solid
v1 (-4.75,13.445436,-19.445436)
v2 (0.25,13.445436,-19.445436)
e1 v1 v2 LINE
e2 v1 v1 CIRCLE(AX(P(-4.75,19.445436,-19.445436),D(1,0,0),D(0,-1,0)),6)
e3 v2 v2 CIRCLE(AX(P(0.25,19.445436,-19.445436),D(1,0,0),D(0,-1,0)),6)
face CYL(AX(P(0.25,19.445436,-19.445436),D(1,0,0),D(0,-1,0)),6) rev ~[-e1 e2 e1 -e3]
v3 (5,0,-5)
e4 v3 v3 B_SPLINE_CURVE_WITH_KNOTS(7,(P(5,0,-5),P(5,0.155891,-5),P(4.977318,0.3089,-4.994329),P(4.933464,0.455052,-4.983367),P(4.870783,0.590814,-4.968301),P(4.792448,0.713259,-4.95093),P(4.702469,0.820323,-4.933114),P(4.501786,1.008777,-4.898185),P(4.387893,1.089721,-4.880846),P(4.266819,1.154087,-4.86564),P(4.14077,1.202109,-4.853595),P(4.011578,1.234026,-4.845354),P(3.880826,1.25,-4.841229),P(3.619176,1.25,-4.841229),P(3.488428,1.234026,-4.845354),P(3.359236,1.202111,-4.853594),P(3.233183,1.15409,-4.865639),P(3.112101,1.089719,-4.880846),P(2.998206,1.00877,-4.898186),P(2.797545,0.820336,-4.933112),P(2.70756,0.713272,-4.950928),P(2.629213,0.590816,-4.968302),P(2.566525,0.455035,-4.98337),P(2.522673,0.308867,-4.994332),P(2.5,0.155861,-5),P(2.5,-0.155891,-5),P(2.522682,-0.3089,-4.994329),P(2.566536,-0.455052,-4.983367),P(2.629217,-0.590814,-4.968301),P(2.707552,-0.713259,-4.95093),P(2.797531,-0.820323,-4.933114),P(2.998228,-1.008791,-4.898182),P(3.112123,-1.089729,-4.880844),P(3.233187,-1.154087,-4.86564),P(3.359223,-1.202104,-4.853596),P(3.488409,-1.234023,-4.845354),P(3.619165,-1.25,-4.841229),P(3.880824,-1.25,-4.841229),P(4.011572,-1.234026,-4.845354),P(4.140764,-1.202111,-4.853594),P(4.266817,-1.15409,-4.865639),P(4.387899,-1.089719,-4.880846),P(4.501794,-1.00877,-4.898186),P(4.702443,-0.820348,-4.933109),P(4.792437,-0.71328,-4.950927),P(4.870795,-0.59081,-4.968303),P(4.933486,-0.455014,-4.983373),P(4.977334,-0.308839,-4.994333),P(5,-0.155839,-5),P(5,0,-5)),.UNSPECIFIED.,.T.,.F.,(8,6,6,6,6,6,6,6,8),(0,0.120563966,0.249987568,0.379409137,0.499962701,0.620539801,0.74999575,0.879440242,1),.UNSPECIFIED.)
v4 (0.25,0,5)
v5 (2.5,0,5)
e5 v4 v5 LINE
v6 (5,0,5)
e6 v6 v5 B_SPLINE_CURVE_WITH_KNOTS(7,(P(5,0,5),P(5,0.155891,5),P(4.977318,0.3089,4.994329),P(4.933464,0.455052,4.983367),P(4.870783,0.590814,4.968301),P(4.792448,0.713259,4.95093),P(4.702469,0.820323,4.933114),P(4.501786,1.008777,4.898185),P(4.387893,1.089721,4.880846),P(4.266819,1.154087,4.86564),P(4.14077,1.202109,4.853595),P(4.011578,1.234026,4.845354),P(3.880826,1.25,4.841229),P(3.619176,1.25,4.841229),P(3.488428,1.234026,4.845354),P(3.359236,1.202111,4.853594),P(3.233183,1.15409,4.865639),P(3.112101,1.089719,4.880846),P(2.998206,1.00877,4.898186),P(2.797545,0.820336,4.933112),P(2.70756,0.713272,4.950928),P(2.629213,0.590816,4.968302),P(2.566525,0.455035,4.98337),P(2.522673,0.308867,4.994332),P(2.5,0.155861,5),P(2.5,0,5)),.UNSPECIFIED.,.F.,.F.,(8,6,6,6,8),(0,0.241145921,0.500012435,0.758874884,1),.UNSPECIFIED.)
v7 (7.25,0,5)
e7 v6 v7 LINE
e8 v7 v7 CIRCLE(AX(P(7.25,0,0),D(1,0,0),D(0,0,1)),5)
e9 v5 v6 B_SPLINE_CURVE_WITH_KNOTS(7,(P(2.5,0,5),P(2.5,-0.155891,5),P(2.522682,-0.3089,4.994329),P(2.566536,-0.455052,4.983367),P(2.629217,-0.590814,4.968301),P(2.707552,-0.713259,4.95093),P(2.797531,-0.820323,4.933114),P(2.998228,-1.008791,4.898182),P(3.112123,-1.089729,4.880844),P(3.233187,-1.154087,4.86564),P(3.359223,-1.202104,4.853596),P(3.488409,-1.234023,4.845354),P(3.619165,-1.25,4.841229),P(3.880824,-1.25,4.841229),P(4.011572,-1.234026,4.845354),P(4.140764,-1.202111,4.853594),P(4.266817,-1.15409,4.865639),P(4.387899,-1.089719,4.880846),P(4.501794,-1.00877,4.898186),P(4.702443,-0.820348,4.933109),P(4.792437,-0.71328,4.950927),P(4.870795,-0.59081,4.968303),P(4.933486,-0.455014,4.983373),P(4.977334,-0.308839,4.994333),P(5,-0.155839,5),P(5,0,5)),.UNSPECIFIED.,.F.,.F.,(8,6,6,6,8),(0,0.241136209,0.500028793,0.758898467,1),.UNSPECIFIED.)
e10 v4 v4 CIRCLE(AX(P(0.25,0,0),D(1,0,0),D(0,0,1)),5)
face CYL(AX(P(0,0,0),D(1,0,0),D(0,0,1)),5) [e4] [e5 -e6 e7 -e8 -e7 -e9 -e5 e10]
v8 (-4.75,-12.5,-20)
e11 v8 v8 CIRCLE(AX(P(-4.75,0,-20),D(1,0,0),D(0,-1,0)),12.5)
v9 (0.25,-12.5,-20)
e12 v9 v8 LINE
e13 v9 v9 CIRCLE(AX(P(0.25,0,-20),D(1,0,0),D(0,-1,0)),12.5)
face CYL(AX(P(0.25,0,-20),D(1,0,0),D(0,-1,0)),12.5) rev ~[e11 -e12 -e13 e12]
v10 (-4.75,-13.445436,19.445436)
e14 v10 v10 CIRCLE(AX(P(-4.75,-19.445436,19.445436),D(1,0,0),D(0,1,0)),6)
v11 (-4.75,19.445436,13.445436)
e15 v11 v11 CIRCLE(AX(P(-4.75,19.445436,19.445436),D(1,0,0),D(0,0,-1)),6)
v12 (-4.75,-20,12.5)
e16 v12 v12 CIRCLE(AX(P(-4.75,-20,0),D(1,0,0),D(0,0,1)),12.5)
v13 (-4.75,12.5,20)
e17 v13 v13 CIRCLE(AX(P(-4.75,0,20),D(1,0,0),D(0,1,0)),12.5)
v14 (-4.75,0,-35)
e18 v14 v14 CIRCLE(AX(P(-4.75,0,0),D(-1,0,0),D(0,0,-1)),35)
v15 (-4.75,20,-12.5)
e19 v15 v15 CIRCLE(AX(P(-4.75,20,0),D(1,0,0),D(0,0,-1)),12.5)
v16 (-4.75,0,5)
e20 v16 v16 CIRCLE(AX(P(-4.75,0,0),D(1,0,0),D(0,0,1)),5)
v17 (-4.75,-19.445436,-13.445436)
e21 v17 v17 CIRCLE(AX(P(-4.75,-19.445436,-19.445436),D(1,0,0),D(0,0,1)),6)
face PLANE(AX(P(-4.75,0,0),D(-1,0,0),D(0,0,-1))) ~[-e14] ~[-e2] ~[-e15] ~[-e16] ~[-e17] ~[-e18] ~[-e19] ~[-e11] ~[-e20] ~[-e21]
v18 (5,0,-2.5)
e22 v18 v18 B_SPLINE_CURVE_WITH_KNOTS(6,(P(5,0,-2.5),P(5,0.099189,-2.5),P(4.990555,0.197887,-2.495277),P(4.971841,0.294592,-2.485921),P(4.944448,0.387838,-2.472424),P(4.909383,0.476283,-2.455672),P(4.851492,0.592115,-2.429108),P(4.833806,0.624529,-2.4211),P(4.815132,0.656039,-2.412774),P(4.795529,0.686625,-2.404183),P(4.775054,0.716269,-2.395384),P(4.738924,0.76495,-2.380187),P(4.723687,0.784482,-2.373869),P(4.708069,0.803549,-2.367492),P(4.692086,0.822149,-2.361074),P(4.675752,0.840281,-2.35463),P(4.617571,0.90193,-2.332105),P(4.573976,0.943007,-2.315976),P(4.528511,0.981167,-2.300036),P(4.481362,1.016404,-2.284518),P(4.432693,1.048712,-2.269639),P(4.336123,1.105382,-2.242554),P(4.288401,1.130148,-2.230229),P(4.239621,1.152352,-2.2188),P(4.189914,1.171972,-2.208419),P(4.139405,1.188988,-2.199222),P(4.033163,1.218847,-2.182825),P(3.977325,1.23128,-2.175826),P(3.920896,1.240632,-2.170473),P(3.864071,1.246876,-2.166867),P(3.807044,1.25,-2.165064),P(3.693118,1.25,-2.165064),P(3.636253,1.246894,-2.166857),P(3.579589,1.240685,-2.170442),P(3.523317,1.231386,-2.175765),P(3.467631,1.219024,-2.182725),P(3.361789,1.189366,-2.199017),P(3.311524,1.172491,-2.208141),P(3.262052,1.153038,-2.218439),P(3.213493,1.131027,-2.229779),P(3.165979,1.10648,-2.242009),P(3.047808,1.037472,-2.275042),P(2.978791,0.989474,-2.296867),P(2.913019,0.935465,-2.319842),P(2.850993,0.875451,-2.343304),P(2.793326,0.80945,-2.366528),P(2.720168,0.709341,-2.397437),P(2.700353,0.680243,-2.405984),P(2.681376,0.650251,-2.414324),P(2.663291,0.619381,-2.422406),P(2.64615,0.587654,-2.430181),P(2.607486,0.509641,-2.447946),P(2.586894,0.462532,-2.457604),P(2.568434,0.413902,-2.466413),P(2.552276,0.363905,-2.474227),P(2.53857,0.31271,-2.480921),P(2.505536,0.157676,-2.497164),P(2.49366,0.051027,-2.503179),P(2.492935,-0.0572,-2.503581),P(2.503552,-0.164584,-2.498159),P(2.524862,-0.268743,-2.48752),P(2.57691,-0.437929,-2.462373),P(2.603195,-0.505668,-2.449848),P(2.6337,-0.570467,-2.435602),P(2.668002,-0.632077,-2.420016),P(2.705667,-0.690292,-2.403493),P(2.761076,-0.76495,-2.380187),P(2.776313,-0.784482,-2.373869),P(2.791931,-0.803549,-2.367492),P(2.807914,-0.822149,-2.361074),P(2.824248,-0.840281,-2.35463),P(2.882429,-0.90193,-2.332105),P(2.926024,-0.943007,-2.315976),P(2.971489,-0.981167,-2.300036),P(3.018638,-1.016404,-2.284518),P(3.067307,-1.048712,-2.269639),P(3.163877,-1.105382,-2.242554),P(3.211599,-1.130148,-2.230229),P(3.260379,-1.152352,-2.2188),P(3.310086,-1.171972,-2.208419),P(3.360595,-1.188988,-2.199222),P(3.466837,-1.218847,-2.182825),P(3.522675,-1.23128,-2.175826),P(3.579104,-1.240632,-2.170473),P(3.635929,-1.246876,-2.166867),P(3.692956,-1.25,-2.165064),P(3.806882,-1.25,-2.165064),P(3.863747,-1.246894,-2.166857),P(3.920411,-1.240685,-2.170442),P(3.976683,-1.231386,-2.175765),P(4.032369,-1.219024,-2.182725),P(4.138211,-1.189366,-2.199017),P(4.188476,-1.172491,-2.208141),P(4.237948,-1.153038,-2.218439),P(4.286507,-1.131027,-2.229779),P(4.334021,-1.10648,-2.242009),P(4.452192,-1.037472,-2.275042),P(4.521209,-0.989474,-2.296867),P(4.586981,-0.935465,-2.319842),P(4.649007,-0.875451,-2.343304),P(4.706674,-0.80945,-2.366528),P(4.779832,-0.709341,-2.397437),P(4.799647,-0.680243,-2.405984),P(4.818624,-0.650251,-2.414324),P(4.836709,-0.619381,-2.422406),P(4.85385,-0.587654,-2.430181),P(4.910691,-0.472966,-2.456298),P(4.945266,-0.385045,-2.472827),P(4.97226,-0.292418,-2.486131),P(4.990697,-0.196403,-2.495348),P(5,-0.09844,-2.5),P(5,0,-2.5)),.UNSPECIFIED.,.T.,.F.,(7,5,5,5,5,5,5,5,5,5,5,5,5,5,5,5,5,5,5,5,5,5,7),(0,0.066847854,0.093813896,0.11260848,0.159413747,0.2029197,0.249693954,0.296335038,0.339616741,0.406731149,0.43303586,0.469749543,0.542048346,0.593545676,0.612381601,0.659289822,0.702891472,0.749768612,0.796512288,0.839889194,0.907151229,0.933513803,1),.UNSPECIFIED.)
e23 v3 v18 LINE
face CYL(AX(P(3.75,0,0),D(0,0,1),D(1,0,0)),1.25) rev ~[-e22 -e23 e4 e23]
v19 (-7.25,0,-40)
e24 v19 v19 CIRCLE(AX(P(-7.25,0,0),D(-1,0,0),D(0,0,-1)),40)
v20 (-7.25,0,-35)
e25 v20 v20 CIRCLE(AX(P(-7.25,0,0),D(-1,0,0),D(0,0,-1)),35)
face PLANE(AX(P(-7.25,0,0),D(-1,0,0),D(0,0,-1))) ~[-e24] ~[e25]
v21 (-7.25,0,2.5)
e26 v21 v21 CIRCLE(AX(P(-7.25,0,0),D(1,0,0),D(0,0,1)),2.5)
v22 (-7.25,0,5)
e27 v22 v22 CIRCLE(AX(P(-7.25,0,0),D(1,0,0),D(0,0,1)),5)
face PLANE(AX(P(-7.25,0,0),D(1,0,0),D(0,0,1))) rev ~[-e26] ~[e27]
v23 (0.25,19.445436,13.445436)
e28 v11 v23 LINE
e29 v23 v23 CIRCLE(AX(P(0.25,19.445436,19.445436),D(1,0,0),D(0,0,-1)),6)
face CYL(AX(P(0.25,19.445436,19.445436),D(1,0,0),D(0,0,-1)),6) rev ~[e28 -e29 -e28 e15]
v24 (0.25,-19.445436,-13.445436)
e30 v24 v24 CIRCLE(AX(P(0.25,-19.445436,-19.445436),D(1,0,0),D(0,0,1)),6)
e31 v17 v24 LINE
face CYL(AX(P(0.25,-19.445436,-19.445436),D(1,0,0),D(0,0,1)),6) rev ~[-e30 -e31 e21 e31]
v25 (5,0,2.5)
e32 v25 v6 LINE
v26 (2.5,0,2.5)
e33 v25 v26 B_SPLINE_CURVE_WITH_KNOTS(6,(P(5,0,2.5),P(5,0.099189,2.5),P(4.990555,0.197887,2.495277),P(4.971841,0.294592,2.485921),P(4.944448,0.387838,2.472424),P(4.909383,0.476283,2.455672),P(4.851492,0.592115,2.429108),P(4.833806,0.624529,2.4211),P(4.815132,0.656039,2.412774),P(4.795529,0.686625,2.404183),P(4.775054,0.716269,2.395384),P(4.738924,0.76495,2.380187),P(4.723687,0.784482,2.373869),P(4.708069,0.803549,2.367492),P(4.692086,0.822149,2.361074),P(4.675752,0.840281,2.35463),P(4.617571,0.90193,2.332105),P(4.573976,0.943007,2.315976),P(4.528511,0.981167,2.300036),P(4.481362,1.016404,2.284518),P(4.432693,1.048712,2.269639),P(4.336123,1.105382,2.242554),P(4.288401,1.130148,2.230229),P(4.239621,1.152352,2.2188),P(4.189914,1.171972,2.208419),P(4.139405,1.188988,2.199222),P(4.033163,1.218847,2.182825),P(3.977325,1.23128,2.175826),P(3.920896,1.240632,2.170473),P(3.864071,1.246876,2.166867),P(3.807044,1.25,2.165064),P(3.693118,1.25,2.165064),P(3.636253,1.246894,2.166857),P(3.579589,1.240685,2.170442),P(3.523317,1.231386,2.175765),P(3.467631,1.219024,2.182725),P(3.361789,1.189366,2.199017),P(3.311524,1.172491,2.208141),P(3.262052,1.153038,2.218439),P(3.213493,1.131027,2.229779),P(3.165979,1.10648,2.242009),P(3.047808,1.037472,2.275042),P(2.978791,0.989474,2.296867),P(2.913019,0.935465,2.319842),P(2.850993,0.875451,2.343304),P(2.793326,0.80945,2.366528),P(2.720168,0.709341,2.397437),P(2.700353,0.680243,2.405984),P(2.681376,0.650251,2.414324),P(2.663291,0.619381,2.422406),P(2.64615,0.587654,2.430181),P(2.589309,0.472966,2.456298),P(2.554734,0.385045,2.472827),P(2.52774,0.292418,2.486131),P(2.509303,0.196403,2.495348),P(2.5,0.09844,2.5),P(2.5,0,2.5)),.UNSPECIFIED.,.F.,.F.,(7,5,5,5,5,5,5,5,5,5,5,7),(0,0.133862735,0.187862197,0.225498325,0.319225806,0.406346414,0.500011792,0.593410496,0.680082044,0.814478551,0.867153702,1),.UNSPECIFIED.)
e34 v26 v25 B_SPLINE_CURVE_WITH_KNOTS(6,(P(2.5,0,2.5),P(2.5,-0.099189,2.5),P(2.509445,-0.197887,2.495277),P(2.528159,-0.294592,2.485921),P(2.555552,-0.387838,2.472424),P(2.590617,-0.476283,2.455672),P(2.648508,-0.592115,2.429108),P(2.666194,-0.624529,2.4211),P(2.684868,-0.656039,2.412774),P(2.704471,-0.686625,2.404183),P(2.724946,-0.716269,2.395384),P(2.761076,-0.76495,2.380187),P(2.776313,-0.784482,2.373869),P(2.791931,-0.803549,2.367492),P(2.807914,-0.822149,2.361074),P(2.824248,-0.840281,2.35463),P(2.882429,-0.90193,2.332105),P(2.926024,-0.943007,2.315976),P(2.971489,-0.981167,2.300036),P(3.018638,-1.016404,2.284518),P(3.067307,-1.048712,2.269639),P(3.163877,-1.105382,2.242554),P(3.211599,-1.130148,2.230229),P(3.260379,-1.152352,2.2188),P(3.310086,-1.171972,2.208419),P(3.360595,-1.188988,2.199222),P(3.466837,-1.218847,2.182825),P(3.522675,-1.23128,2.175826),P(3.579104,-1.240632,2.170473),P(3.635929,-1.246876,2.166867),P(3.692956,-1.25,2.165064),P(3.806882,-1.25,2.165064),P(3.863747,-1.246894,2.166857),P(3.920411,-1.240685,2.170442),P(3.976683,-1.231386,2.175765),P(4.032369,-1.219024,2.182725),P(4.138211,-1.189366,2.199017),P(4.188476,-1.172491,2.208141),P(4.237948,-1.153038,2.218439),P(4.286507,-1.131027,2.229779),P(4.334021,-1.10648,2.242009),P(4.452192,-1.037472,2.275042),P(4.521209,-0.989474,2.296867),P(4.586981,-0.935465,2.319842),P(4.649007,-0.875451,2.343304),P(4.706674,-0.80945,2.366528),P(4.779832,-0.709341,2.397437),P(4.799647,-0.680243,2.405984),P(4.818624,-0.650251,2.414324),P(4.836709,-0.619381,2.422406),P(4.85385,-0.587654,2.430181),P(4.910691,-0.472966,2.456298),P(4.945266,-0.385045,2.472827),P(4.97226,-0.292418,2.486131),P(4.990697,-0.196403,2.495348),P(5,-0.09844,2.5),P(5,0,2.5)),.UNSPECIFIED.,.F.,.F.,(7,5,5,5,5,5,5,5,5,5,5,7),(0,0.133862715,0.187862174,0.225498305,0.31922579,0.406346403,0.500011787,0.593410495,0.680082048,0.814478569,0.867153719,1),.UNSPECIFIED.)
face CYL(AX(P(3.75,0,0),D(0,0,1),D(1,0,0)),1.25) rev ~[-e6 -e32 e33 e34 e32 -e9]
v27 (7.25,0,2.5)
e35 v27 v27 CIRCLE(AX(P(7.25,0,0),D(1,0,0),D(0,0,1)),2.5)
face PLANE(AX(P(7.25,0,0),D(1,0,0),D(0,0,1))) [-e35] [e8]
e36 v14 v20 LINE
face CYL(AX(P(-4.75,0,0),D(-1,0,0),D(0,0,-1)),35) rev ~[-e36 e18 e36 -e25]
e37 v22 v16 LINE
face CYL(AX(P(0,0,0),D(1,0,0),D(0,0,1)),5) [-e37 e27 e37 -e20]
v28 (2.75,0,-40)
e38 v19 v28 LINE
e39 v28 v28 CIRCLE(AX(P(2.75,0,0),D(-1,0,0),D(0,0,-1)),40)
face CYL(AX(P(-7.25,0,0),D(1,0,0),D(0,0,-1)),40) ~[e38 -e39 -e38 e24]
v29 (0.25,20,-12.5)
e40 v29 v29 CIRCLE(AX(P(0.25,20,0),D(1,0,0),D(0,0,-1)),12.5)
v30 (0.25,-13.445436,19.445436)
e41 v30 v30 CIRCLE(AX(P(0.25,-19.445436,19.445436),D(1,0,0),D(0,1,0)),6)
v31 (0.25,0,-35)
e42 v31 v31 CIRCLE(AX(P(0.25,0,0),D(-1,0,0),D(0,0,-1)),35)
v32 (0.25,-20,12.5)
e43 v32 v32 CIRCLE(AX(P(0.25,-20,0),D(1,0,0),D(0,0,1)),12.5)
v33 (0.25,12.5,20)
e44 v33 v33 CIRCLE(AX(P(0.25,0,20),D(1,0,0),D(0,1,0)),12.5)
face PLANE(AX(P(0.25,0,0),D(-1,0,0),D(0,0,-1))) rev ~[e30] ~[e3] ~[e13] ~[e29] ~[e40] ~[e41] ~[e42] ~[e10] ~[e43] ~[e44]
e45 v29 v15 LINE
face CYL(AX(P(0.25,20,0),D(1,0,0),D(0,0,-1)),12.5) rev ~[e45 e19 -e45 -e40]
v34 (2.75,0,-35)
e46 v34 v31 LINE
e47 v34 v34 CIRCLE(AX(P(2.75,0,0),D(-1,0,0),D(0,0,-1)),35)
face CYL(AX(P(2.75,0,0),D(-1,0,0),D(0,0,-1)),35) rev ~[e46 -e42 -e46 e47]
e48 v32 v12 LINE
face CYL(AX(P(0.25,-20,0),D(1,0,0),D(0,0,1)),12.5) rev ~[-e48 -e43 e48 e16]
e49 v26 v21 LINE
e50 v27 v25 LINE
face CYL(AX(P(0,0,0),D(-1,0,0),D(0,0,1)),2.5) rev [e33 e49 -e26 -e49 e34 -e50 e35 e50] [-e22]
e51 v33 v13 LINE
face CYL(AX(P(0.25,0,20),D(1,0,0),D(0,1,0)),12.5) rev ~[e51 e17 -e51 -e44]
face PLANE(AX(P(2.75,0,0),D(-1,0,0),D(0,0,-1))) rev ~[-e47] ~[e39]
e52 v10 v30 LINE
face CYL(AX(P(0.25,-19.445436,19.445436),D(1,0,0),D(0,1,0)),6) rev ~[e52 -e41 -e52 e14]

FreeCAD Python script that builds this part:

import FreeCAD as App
import Part
import Sketcher

V = App.Vector


def add_polygon(sketch, points):
    """Adds a closed chain of lines whose ends are joined by coincident constraints."""
    first, n = sketch.GeometryCount, len(points)
    for a, b in zip(points, points[1:] + points[:1]):
        sketch.addGeometry(Part.LineSegment(App.Vector(*a, 0), App.Vector(*b, 0)), False)
    for i in range(n):
        sketch.addConstraint(Sketcher.Constraint("Coincident", first + i, 2, first + (i + 1) % n, 1))

doc = App.newDocument("Part")
params = doc.addObject("Spreadsheet::Sheet", "Params")
for row, (alias, value) in enumerate([
    ("sketch1_diameter", "10 mm"),
    ("sketch1_diameter2", "5 mm"),
    ("pad1_length", "14.5 mm"),
    ("sketch2_width", "5 mm"),
    ("sketch2_width2", "10 mm"),
    ("sketch2_height", "30 mm"),
    ("revolution_angle", "360 deg"),
    ("sketch3_diameter", "25 mm"),
    ("sketch3_diameter2", "12 mm"),
    ("pocket1_length", "116.127122 mm"),
    ("sketch4_diameter", "2.5 mm"),
    ("pocket2_length", "20 mm"),
], start=1):
    params.set(f"A{row}", alias)
    params.set(f"B{row}", "=" + value)
    params.setAlias(f"B{row}", alias)

body = doc.addObject("PartDesign::Body", "Body")

# Sketch on YZ plane
sketch1 = doc.addObject("Sketcher::SketchObject", "Sketch")
body.addObject(sketch1)
sketch1.AttachmentSupport = (doc.YZ_Plane, [""])
sketch1.MapMode = "FlatFace"
sketch1.addGeometry([
    Part.Circle(V(0, 0, 0), V(0, 0, 1), 5),
    Part.Circle(V(0, 0, 0), V(0, 0, 1), 2.5),
], False)
sketch1.addConstraint([
    Sketcher.Constraint("Coincident", 0, 3, -1, 1),
    Sketcher.Constraint("Coincident", 1, 3, -1, 1),
    Sketcher.Constraint("Diameter", 0, 10.0),
    Sketcher.Constraint("Diameter", 1, 5.0),
])
sketch1.setExpression("Constraints[2]", "Params.sketch1_diameter")
sketch1.setExpression("Constraints[3]", "Params.sketch1_diameter2")
pad1 = doc.addObject("PartDesign::Pad", "Pad")
body.addObject(pad1)
pad1.Profile = sketch1
pad1.setExpression("Length", "Params.pad1_length")
pad1.Midplane = True

# Sketch on XY plane
sketch2 = doc.addObject("Sketcher::SketchObject", "Sketch001")
body.addObject(sketch2)
sketch2.AttachmentSupport = (doc.XY_Plane, [""])
sketch2.MapMode = "FlatFace"
add_polygon(sketch2, [(-4.8, 35), (-4.8, 5), (0.2, 5), (0.2, 35), (2.8, 35), (2.8, 40), (-7.2, 40), (-7.2, 35)])  # lines 0-7
sketch2.addConstraint([
    Sketcher.Constraint("Vertical", 0),
    Sketcher.Constraint("Horizontal", 1),
    Sketcher.Constraint("Vertical", 2),
    Sketcher.Constraint("Horizontal", 3),
    Sketcher.Constraint("Vertical", 4),
    Sketcher.Constraint("Horizontal", 5),
    Sketcher.Constraint("Vertical", 6),
    Sketcher.Constraint("Horizontal", 7),
    Sketcher.Constraint("Horizontal", 3, 2, 6, 2),
    Sketcher.Constraint("Equal", 3, 7),
    Sketcher.Constraint("Equal", 1, 4),
    Sketcher.Constraint("DistanceX", 1, 1, 1, 2, 5.0),
    Sketcher.Constraint("DistanceX", 5, 2, 5, 1, 10.0),
    Sketcher.Constraint("DistanceY", 0, 2, 0, 1, 30.0),
    Sketcher.Constraint("DistanceY", -1, 1, 0, 2, 5.0),
    Sketcher.Constraint("DistanceX", 0, 2, -1, 1, 4.75),
])
sketch2.setExpression("Constraints[19]", "Params.sketch2_width")
sketch2.setExpression("Constraints[20]", "Params.sketch2_width2")
sketch2.setExpression("Constraints[21]", "Params.sketch2_height")
revolution = doc.addObject("PartDesign::Revolution", "Revolution")
body.addObject(revolution)
revolution.Profile = sketch2
revolution.ReferenceAxis = (sketch2, ["H_Axis"])
revolution.setExpression("Angle", "Params.revolution_angle")

# Sketch on YZ plane
sketch3 = doc.addObject("Sketcher::SketchObject", "Sketch002")
body.addObject(sketch3)
sketch3.AttachmentSupport = (doc.YZ_Plane, [""])
sketch3.MapMode = "FlatFace"
sketch3.AttachmentOffset = App.Placement(V(0, 0, 0.25), App.Rotation())
sketch3.addGeometry([
    Part.Circle(V(20, 0, 0), V(0, 0, 1), 12),
    Part.Circle(V(19, 19, 0), V(0, 0, 1), 6),
], False)
sketch3.addConstraint([
    Sketcher.Constraint("PointOnObject", 0, 3, -1),
    Sketcher.Constraint("Diameter", 0, 25.0),
    Sketcher.Constraint("Diameter", 1, 12.0),
    Sketcher.Constraint("DistanceX", -1, 1, 0, 3, 20.0),
    Sketcher.Constraint("DistanceX", -1, 1, 1, 3, 19.445436),
    Sketcher.Constraint("DistanceY", -1, 1, 1, 3, 19.445436),
])
sketch3.setExpression("Constraints[1]", "Params.sketch3_diameter")
sketch3.setExpression("Constraints[2]", "Params.sketch3_diameter2")
pocket1 = doc.addObject("PartDesign::Pocket", "Pocket")
body.addObject(pocket1)
pocket1.Profile = sketch3
pocket1.setExpression("Length", "Params.pocket1_length")
pocket1.Midplane = True
doc.recompute()

polarpattern = doc.addObject("PartDesign::PolarPattern", "PolarPattern")
body.addObject(polarpattern)
polarpattern.Originals = [pocket1]
polarpattern.Axis = (doc.X_Axis, [""])
polarpattern.Angle = 360
polarpattern.Occurrences = 4
body.Tip = polarpattern

# Sketch on XY plane
sketch4 = doc.addObject("Sketcher::SketchObject", "Sketch003")
body.addObject(sketch4)
sketch4.AttachmentSupport = (doc.XY_Plane, [""])
sketch4.MapMode = "FlatFace"
sketch4.addGeometry(Part.Circle(V(3.8, 0, 0), V(0, 0, 1), 1.2), False)
sketch4.addConstraint([
    Sketcher.Constraint("PointOnObject", 0, 3, -1),
    Sketcher.Constraint("Diameter", 0, 2.5),
    Sketcher.Constraint("DistanceX", -1, 1, 0, 3, 3.75),
])
sketch4.setExpression("Constraints[1]", "Params.sketch4_diameter")
pocket2 = doc.addObject("PartDesign::Pocket", "Pocket001")
body.addObject(pocket2)
pocket2.Profile = sketch4
pocket2.setExpression("Length", "Params.pocket2_length")
pocket2.Midplane = True

doc.recompute()
